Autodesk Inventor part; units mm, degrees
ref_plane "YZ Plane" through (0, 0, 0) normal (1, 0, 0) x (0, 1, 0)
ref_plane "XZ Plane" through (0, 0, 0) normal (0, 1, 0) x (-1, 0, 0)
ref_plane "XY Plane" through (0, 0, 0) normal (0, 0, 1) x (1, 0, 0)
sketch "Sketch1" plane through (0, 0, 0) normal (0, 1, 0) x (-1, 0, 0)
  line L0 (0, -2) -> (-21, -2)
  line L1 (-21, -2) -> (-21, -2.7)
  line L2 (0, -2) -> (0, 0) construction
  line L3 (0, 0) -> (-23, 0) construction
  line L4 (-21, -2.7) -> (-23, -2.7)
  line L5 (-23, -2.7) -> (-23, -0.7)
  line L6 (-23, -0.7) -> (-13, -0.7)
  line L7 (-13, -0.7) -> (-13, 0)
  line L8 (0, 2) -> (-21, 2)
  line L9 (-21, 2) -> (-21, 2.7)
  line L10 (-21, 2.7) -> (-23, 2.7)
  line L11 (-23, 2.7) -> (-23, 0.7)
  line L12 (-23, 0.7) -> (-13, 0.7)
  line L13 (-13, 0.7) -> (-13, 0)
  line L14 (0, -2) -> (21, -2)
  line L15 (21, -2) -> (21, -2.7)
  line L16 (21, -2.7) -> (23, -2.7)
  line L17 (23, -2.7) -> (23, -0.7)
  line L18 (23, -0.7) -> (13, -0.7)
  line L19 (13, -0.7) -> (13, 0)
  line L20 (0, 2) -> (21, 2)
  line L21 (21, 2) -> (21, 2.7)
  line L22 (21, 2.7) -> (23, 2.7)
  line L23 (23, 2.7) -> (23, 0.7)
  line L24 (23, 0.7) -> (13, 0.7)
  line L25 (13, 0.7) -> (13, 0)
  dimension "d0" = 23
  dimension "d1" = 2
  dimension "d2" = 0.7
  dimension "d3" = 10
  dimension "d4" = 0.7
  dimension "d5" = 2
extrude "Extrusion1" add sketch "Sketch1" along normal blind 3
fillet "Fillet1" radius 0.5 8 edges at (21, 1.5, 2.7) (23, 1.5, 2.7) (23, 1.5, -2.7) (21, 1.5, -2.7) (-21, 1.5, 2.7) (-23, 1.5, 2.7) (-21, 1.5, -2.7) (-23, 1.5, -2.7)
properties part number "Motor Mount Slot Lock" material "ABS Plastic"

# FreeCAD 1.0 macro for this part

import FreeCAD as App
import Part
import Sketcher
Q = App.Units.Quantity


def edges_at(feature, points):
    """Names of the edges that pass closest to the given points."""
    edges = feature.Shape.Edges
    near = lambda p: min(range(len(edges)), key=lambda i: edges[i].distToShape(Part.Vertex(*p))[0])
    return sorted({f"Edge{near(p) + 1}" for p in points})


def add_polygon(sketch, points):
    """Adds a closed chain of lines whose ends are joined by coincident constraints."""
    first, n = sketch.GeometryCount, len(points)
    for a, b in zip(points, points[1:] + points[:1]):
        sketch.addGeometry(Part.LineSegment(App.Vector(*a, 0), App.Vector(*b, 0)), False)
    for i in range(n):
        sketch.addConstraint(Sketcher.Constraint("Coincident", first + i, 2, first + (i + 1) % n, 1))

doc = App.newDocument("Part")
body = doc.addObject("PartDesign::Body", "Body")

# Sketch on XZ plane
sketch1 = body.newObject("Sketcher::SketchObject", "Sketch")
sketch1.AttachmentSupport = (doc.getObject("XZ_Plane"), [""])
sketch1.MapMode = "FlatFace"
add_polygon(sketch1, [(21, -2), (-21, -2), (-21, -2.7), (-23, -2.7), (-23, -0.7), (-13, -0.7), (-13, 0.7), (-23, 0.7), (-23, 2.7), (-21, 2.7), (-21, 2), (21, 2), (21, 2.7), (23, 2.7), (23, 0.7), (13, 0.7), (13, -0.7), (23, -0.7), (23, -2.7), (21, -2.7)])  # lines 0-19
sketch1.addConstraint([
    Sketcher.Constraint("Horizontal", 0),
    Sketcher.Constraint("Vertical", 1),
    Sketcher.Constraint("Horizontal", 2),
    Sketcher.Constraint("Vertical", 3),
    Sketcher.Constraint("Horizontal", 4),
    Sketcher.Constraint("Vertical", 5),
    Sketcher.Constraint("Horizontal", 6),
    Sketcher.Constraint("Vertical", 7),
    Sketcher.Constraint("Horizontal", 8),
    Sketcher.Constraint("Vertical", 9),
    Sketcher.Constraint("Horizontal", 10),
    Sketcher.Constraint("Vertical", 11),
    Sketcher.Constraint("Horizontal", 12),
    Sketcher.Constraint("Vertical", 13),
    Sketcher.Constraint("Horizontal", 14),
    Sketcher.Constraint("Vertical", 15),
    Sketcher.Constraint("Horizontal", 16),
    Sketcher.Constraint("Vertical", 17),
    Sketcher.Constraint("Horizontal", 18),
    Sketcher.Constraint("Vertical", 19),
    Sketcher.Constraint("Symmetric", 0, 2, 10, 2, -1, 1),
    Sketcher.Constraint("Symmetric", 2, 2, 12, 2, -1, 1),
    Sketcher.Constraint("Symmetric", 4, 2, 14, 2, -1, 1),
    Sketcher.Constraint("Symmetric", 6, 2, 16, 2, -1, 1),
    Sketcher.Constraint("Symmetric", 8, 2, 18, 2, -1, 1),
    Sketcher.Constraint("Symmetric", 8, 2, 11, 2, -2),
    Sketcher.Constraint("Symmetric", 6, 2, 13, 2, -2),
    Sketcher.Constraint("Equal", 18, 3),
    Sketcher.Constraint("DistanceX", 2, 2, 2, 1, Q("2 mm")),
    Sketcher.Constraint("DistanceX", 4, 1, 4, 2, Q("10 mm")),
    Sketcher.Constraint("DistanceY", 1, 2, 1, 1, Q("0.7 mm")),
    Sketcher.Constraint("DistanceY", 0, 2, -1, 1, Q("2 mm")),
    Sketcher.Constraint("DistanceX", 2, 2, -1, 1, Q("23 mm")),
])
pad1 = body.newObject("PartDesign::Pad", "Pad")
pad1.Profile = sketch1
pad1.Length = 3
pad1.Reversed = True
doc.recompute()

fillet = body.newObject("PartDesign::Fillet", "Fillet")
fillet.Base = (pad1, edges_at(pad1, [
    (21, 1.5, 2.7),
    (23, 1.5, 2.7),
    (23, 1.5, -2.7),
    (21, 1.5, -2.7),
    (-21, 1.5, 2.7),
    (-23, 1.5, 2.7),
    (-21, 1.5, -2.7),
    (-23, 1.5, -2.7),
]))
fillet.Radius = 0.5

doc.recompute()
